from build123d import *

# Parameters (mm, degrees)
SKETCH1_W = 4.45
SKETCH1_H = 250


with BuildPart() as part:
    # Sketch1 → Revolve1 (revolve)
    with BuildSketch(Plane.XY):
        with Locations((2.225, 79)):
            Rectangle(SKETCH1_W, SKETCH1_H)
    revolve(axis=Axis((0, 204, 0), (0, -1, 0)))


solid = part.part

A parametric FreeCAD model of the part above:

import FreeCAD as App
import Part
import Sketcher

V = App.Vector
Q = App.Units.Quantity

doc = App.newDocument("Part")
params = doc.addObject("Spreadsheet::Sheet", "Params")
for row, (alias, value) in enumerate([
    ("sketch1_height", "250 mm"),
    ("sketch1_width", "4.45 mm"),
    ("revolution_angle", "360 deg"),
], start=1):
    params.set(f"A{row}", alias)
    params.set(f"B{row}", "=" + value)
    params.setAlias(f"B{row}", alias)

body = doc.addObject("PartDesign::Body", "Body")

# Sketch on XY plane
sketch1 = body.newObject("Sketcher::SketchObject", "Sketch")
sketch1.AttachmentSupport = (doc.getObject("XY_Plane"), [""])
sketch1.MapMode = "FlatFace"
sketch1.addGeometry(Part.LineSegment(V(0, 204, 0), V(0, -46, 0)), False)
sketch1.addGeometry(Part.LineSegment(V(0, -46, 0), V(4.5, -46, 0)), False)
sketch1.addGeometry(Part.LineSegment(V(4.5, -46, 0), V(4.5, 204, 0)), False)
sketch1.addGeometry(Part.LineSegment(V(4.5, 204, 0), V(0, 204, 0)), False)
sketch1.addConstraint(Sketcher.Constraint("Coincident", 0, 2, 1, 1))
sketch1.addConstraint(Sketcher.Constraint("Coincident", 1, 2, 2, 1))
sketch1.addConstraint(Sketcher.Constraint("Coincident", 2, 2, 3, 1))
sketch1.addConstraint(Sketcher.Constraint("Coincident", 3, 2, 0, 1))
sketch1.addConstraint(Sketcher.Constraint("Vertical", 0))
sketch1.addConstraint(Sketcher.Constraint("Horizontal", 1))
sketch1.addConstraint(Sketcher.Constraint("Vertical", 2))
sketch1.addConstraint(Sketcher.Constraint("Horizontal", 3))
sketch1.addConstraint(Sketcher.Constraint("PointOnObject", 0, 2, -2))
sketch1.addConstraint(Sketcher.Constraint("DistanceY", 0, 2, 0, 1, Q("250 mm")))
sketch1.addConstraint(Sketcher.Constraint("DistanceY", 0, 2, -1, 1, Q("46 mm")))
sketch1.addConstraint(Sketcher.Constraint("DistanceX", 1, 1, 1, 2, Q("4.45 mm")))
sketch1.setExpression("Constraints[9]", "Params.sketch1_height")
sketch1.setExpression("Constraints[11]", "Params.sketch1_width")
revolution = body.newObject("PartDesign::Revolution", "Revolution")
revolution.Profile = sketch1
revolution.ReferenceAxis = (sketch1, ["V_Axis"])
revolution.setExpression("Angle", "Params.revolution_angle")

doc.recompute()
